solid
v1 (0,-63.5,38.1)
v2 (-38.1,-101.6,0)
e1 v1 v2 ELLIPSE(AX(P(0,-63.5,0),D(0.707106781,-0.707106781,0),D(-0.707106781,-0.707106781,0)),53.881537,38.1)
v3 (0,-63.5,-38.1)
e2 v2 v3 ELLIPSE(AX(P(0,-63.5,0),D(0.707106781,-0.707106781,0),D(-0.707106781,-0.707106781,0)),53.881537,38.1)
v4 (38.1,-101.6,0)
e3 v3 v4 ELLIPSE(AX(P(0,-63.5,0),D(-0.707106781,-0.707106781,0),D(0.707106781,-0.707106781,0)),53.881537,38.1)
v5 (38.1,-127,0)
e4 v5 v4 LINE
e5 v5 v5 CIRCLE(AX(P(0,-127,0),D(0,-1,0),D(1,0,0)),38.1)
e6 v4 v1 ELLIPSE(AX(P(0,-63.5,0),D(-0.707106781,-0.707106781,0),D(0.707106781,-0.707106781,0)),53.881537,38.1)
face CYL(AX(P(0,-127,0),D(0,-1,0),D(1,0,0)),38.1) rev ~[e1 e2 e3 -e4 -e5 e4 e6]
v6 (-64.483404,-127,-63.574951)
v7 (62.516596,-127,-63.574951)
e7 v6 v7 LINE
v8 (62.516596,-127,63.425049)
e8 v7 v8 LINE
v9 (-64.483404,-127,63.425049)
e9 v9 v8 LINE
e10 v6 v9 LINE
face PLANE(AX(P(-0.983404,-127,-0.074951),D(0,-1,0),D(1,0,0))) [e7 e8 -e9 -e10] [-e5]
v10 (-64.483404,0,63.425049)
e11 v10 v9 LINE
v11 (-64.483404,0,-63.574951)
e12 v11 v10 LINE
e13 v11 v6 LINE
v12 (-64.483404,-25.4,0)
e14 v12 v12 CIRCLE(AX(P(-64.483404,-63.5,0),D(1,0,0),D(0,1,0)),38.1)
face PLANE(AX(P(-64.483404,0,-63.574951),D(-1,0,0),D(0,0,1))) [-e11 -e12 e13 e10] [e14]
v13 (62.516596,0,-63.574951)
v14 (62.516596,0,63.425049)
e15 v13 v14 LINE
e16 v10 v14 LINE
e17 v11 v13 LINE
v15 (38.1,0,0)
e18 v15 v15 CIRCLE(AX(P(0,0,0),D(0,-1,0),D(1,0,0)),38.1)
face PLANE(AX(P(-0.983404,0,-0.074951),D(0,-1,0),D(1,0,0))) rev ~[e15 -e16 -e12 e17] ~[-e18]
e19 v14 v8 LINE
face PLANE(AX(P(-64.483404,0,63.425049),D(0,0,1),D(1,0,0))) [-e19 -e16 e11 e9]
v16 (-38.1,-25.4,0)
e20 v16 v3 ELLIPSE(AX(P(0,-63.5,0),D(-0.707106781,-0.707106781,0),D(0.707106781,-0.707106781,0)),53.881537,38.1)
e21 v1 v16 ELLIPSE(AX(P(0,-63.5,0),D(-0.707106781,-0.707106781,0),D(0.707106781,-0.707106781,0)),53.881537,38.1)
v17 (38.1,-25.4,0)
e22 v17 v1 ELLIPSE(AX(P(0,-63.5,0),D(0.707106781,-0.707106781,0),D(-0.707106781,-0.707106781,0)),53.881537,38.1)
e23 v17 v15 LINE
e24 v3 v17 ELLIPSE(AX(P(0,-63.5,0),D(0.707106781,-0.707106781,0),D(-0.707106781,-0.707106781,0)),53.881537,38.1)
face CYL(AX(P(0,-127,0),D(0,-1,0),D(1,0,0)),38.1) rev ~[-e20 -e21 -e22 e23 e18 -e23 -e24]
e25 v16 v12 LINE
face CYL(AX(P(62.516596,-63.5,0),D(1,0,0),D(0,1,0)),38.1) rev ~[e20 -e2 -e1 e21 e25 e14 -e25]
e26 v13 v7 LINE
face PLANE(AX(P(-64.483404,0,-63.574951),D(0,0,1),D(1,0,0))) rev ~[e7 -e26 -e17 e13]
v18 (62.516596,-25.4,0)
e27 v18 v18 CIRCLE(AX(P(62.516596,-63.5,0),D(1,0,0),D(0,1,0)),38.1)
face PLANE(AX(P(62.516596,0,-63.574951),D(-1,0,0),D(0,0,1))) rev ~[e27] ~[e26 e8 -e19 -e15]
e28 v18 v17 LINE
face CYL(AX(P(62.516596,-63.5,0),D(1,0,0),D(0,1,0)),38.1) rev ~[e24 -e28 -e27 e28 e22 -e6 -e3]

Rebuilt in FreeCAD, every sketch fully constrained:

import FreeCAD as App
import Part
import Sketcher
Q = App.Units.Quantity

doc = App.newDocument("Part")
body = doc.addObject("PartDesign::Body", "Body")

# Sketch on XZ plane
sketch1 = body.newObject("Sketcher::SketchObject", "Sketch")
sketch1.AttachmentSupport = (doc.getObject("XZ_Plane"), [""])
sketch1.MapMode = "FlatFace"
sketch1.addGeometry(Part.LineSegment(App.Vector(-64, 63, 0), App.Vector(-64, -64, 0)), False)
sketch1.addGeometry(Part.LineSegment(App.Vector(-64, -64, 0), App.Vector(63, -64, 0)), False)
sketch1.addGeometry(Part.LineSegment(App.Vector(63, -64, 0), App.Vector(63, 63, 0)), False)
sketch1.addGeometry(Part.LineSegment(App.Vector(63, 63, 0), App.Vector(-64, 63, 0)), False)
sketch1.addConstraint(Sketcher.Constraint("Coincident", 0, 2, 1, 1))
sketch1.addConstraint(Sketcher.Constraint("Coincident", 1, 2, 2, 1))
sketch1.addConstraint(Sketcher.Constraint("Coincident", 2, 2, 3, 1))
sketch1.addConstraint(Sketcher.Constraint("Coincident", 3, 2, 0, 1))
sketch1.addConstraint(Sketcher.Constraint("Vertical", 0))
sketch1.addConstraint(Sketcher.Constraint("Horizontal", 1))
sketch1.addConstraint(Sketcher.Constraint("Vertical", 2))
sketch1.addConstraint(Sketcher.Constraint("Horizontal", 3))
sketch1.addConstraint(Sketcher.Constraint("Equal", 3, 0))
sketch1.addConstraint(Sketcher.Constraint("DistanceX", 1, 1, 1, 2, Q("5 in")))
sketch1.addConstraint(Sketcher.Constraint("DistanceY", 0, 2, -1, 1, Q("63.574951 mm")))
sketch1.addConstraint(Sketcher.Constraint("DistanceX", 0, 2, -1, 1, Q("64.483404 mm")))
pad1 = body.newObject("PartDesign::Pad", "Pad")
pad1.Profile = sketch1
pad1.Length = Q("5 in")

# Sketch on XZ plane
sketch2 = body.newObject("Sketcher::SketchObject", "Sketch001")
sketch2.AttachmentSupport = (doc.getObject("XZ_Plane"), [""])
sketch2.MapMode = "FlatFace"
sketch2.AttachmentOffset = App.Placement(App.Vector(0, 0, 5 * 25.4), App.Rotation())
sketch2.addGeometry(Part.Circle(App.Vector(0, 0, 0), App.Vector(0, 0, 1), 38), False)
sketch2.addConstraint(Sketcher.Constraint("Coincident", 0, 3, -1, 1))
sketch2.addConstraint(Sketcher.Constraint("Diameter", 0, Q("3 in")))
pocket1 = body.newObject("PartDesign::Pocket", "Pocket")
pocket1.Profile = sketch2
pocket1.Type = "ThroughAll"

# Sketch on YZ plane
sketch3 = body.newObject("Sketcher::SketchObject", "Sketch002")
sketch3.AttachmentSupport = (doc.getObject("YZ_Plane"), [""])
sketch3.MapMode = "FlatFace"
sketch3.AttachmentOffset = App.Placement(App.Vector(0, 0, 62.516596), App.Rotation())
sketch3.addGeometry(Part.Circle(App.Vector(-64, 0, 0), App.Vector(0, 0, 1), 38), False)
sketch3.addConstraint(Sketcher.Constraint("PointOnObject", 0, 3, -1))
sketch3.addConstraint(Sketcher.Constraint("Diameter", 0, Q("3 in")))
sketch3.addConstraint(Sketcher.Constraint("DistanceX", 0, 3, -1, 1, Q("2.5 in")))
pocket2 = body.newObject("PartDesign::Pocket", "Pocket001")
pocket2.Profile = sketch3
pocket2.Type = "ThroughAll"

doc.recompute()
